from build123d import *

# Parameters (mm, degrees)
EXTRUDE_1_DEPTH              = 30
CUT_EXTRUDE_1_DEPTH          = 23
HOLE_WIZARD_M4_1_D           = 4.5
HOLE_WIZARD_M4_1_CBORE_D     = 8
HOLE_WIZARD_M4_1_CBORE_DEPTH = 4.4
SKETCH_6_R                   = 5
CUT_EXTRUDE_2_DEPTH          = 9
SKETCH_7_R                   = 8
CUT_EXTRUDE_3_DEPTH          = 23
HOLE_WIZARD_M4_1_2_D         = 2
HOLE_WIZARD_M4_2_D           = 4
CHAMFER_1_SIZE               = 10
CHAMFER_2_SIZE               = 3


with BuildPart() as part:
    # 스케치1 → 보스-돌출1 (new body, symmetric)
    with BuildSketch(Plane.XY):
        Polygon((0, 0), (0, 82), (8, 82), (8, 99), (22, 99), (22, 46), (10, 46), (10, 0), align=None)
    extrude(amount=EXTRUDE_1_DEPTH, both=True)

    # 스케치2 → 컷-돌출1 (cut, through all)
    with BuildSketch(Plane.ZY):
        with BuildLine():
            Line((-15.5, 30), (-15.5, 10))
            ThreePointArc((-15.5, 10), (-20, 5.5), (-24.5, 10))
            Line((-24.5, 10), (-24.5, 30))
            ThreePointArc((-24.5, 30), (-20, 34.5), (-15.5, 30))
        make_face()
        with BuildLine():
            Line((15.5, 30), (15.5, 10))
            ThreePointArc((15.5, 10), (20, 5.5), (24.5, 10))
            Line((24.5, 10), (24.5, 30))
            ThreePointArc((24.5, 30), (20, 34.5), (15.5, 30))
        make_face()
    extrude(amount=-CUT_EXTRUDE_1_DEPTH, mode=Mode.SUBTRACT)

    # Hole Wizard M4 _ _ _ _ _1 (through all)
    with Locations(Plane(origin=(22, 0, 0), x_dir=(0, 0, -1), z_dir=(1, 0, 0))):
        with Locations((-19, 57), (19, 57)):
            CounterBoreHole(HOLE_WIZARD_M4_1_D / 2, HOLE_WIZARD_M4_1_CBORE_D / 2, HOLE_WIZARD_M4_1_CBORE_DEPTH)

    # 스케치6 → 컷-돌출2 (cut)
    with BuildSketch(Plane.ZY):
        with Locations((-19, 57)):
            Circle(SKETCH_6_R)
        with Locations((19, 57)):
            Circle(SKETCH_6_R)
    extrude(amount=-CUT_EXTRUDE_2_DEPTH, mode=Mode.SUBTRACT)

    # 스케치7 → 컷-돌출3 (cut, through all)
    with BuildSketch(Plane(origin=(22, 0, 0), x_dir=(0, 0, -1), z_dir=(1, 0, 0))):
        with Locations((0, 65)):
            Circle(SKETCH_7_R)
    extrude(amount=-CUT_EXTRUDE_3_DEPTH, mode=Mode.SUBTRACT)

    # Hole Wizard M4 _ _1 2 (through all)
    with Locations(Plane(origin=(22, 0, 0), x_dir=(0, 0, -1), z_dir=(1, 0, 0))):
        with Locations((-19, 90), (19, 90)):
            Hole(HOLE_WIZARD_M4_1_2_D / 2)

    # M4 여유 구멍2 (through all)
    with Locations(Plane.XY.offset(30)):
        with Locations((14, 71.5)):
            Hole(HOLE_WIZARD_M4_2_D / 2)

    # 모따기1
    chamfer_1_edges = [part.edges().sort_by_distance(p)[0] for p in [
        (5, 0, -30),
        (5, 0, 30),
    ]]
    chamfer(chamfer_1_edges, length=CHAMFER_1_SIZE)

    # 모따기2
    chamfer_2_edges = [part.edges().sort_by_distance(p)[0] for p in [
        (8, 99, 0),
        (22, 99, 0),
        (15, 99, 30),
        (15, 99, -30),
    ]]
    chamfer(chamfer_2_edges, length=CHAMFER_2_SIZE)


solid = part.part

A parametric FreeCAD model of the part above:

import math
import FreeCAD as App
import Part
import Sketcher
from FreeCAD import Vector


def edges_at(feature, points):
    """Names of the edges that pass closest to the given points."""
    edges = feature.Shape.Edges
    near = lambda p: min(range(len(edges)), key=lambda i: edges[i].distToShape(Part.Vertex(*p))[0])
    return sorted({f"Edge{near(p) + 1}" for p in points})

doc = App.newDocument("Part")
params = doc.addObject("Spreadsheet::Sheet", "Params")
for row, (alias, value) in enumerate([
    ("sketch1_width", "10 mm"),
    ("sketch1_width2", "12 mm"),
    ("sketch1_width3", "14 mm"),
    ("sketch1_height", "82 mm"),
    ("sketch1_height2", "46 mm"),
    ("pad1_length", "60 mm"),
    ("sketch2_radius", "4.5 mm"),
    ("sketch2_width", "20 mm"),
    ("sketch3_diameter", "4.5 mm"),
    ("hole_diameter", "4.5 mm"),
    ("hole_cbore_diameter", "8 mm"),
    ("hole_cbore_depth", "4.4 mm"),
    ("sketch4_diameter", "10 mm"),
    ("pocket2_length", "9 mm"),
    ("sketch5_diameter", "16 mm"),
    ("sketch6_diameter", "2 mm"),
    ("hole2_diameter", "2 mm"),
    ("sketch7_diameter", "4 mm"),
    ("hole3_diameter", "4 mm"),
    ("chamfer_size", "10 mm"),
    ("chamfer2_size", "3 mm"),
], start=1):
    params.set(f"A{row}", alias)
    params.set(f"B{row}", "=" + value)
    params.setAlias(f"B{row}", alias)

body = doc.addObject("PartDesign::Body", "Body")

sketch1 = body.newObject("Sketcher::SketchObject", "Sketch")
sketch1.AttachmentSupport = (doc.getObject("XY_Plane"), [""])
sketch1.MapMode = "FlatFace"
sketch1.addGeometry([
    Part.LineSegment(Vector(0, 82, 0), Vector(0, 0, 0)),
    Part.LineSegment(Vector(0, 0, 0), Vector(10, 0, 0)),
    Part.LineSegment(Vector(10, 0, 0), Vector(10, 46, 0)),
    Part.LineSegment(Vector(10, 46, 0), Vector(22, 46, 0)),
    Part.LineSegment(Vector(22, 46, 0), Vector(22, 99, 0)),
    Part.LineSegment(Vector(22, 99, 0), Vector(8, 99, 0)),
    Part.LineSegment(Vector(8, 99, 0), Vector(8, 82, 0)),
    Part.LineSegment(Vector(8, 82, 0), Vector(0, 82, 0)),
], False)
sketch1.addConstraint([
    Sketcher.Constraint("Coincident", 0, 2, 1, 1),
    Sketcher.Constraint("Coincident", 1, 2, 2, 1),
    Sketcher.Constraint("Coincident", 2, 2, 3, 1),
    Sketcher.Constraint("Coincident", 3, 2, 4, 1),
    Sketcher.Constraint("Coincident", 4, 2, 5, 1),
    Sketcher.Constraint("Coincident", 5, 2, 6, 1),
    Sketcher.Constraint("Coincident", 6, 2, 7, 1),
    Sketcher.Constraint("Coincident", 7, 2, 0, 1),
    Sketcher.Constraint("Vertical", 0),
    Sketcher.Constraint("Horizontal", 1),
    Sketcher.Constraint("Vertical", 2),
    Sketcher.Constraint("Horizontal", 3),
    Sketcher.Constraint("Vertical", 4),
    Sketcher.Constraint("Horizontal", 5),
    Sketcher.Constraint("Vertical", 6),
    Sketcher.Constraint("Horizontal", 7),
    Sketcher.Constraint("Coincident", 0, 2, -1, 1),
    Sketcher.Constraint("DistanceX", 1, 1, 1, 2, 10.0),
    Sketcher.Constraint("DistanceX", 3, 1, 3, 2, 12.0),
    Sketcher.Constraint("DistanceX", 5, 2, 5, 1, 14.0),
    Sketcher.Constraint("DistanceY", 0, 2, 0, 1, 82.0),
    Sketcher.Constraint("DistanceY", 2, 1, 2, 2, 46.0),
    Sketcher.Constraint("DistanceY", 4, 1, 4, 2, 53.0),
])
sketch1.setExpression("Constraints[17]", "Params.sketch1_width")
sketch1.setExpression("Constraints[18]", "Params.sketch1_width2")
sketch1.setExpression("Constraints[19]", "Params.sketch1_width3")
sketch1.setExpression("Constraints[20]", "Params.sketch1_height")
sketch1.setExpression("Constraints[21]", "Params.sketch1_height2")
pad1 = body.newObject("PartDesign::Pad", "Pad")
pad1.Profile = sketch1
pad1.setExpression("Length", "Params.pad1_length")
pad1.Midplane = True

sketch2 = body.newObject("Sketcher::SketchObject", "Sketch001")
sketch2.AttachmentSupport = (doc.getObject("YZ_Plane"), [""])
sketch2.MapMode = "FlatFace"
sketch2.addGeometry([
    Part.LineSegment(Vector(10, -15.5, 0), Vector(30, -15.5, 0)),
    Part.ArcOfCircle(Part.Circle(Vector(30, -20, 0), Vector(0, 0, 1), 4.5), math.radians(-90), math.radians(90)),
    Part.LineSegment(Vector(30, -24.5, 0), Vector(10, -24.5, 0)),
    Part.ArcOfCircle(Part.Circle(Vector(10, -20, 0), Vector(0, 0, 1), 4.5), math.radians(90), math.radians(270)),
    Part.LineSegment(Vector(30, 15.5, 0), Vector(10, 15.5, 0)),
    Part.ArcOfCircle(Part.Circle(Vector(10, 20, 0), Vector(0, 0, 1), 4.5), math.radians(90), math.radians(270)),
    Part.LineSegment(Vector(10, 24.5, 0), Vector(30, 24.5, 0)),
    Part.ArcOfCircle(Part.Circle(Vector(30, 20, 0), Vector(0, 0, 1), 4.5), math.radians(-90), math.radians(90)),
], False)
sketch2.addConstraint([
    Sketcher.Constraint("Tangent", 0, 2, 1, 2),
    Sketcher.Constraint("Tangent", 1, 1, 2, 1),
    Sketcher.Constraint("Tangent", 2, 2, 3, 2),
    Sketcher.Constraint("Tangent", 3, 1, 0, 1),
    Sketcher.Constraint("Tangent", 4, 2, 5, 2),
    Sketcher.Constraint("Tangent", 5, 1, 6, 1),
    Sketcher.Constraint("Tangent", 6, 2, 7, 2),
    Sketcher.Constraint("Tangent", 7, 1, 4, 1),
    Sketcher.Constraint("Horizontal", 0),
    Sketcher.Constraint("Horizontal", 2),
    Sketcher.Constraint("Horizontal", 4),
    Sketcher.Constraint("Horizontal", 6),
    Sketcher.Constraint("Equal", 3, 5),
    Sketcher.Constraint("Symmetric", 3, 3, 5, 3, -1),
    Sketcher.Constraint("Vertical", 1, 3, 7, 3),
    Sketcher.Constraint("Radius", 1, 4.5),
    Sketcher.Constraint("DistanceX", 0, 1, 0, 2, 20.0),
    Sketcher.Constraint("DistanceX", -1, 1, 1, 3, 30.0),
    Sketcher.Constraint("DistanceY", 1, 3, -1, 1, 20.0),
])
sketch2.setExpression("Constraints[15]", "Params.sketch2_radius")
sketch2.setExpression("Constraints[16]", "Params.sketch2_width")
pocket1 = body.newObject("PartDesign::Pocket", "Pocket")
pocket1.Profile = sketch2
pocket1.Type = "ThroughAll"
pocket1.Reversed = True

sketch3 = body.newObject("Sketcher::SketchObject", "Sketch002")
sketch3.AttachmentSupport = (doc.getObject("YZ_Plane"), [""])
sketch3.MapMode = "FlatFace"
sketch3.AttachmentOffset = App.Placement(Vector(0, 0, 22), App.Rotation())
sketch3.addGeometry([
    Part.Circle(Vector(57, 19, 0), Vector(0, 0, 1), 2.25),
    Part.Circle(Vector(57, -19, 0), Vector(0, 0, 1), 2.25),
], False)
sketch3.addConstraint([
    Sketcher.Constraint("Equal", 0, 1),
    Sketcher.Constraint("Symmetric", 0, 3, 1, 3, -1),
    Sketcher.Constraint("Diameter", 0, 4.5),
    Sketcher.Constraint("DistanceX", -1, 1, 0, 3, 57.0),
    Sketcher.Constraint("DistanceY", -1, 1, 0, 3, 19.0),
])
sketch3.setExpression("Constraints[2]", "Params.sketch3_diameter")
doc.recompute()
hole = body.newObject("PartDesign::Hole", "Hole")
hole.Profile = sketch3
hole.ThreadType = "None"
hole.setExpression("Diameter", "Params.hole_diameter")
hole.DepthType = "ThroughAll"
hole.HoleCutType = "Counterbore"
hole.setExpression("HoleCutDiameter", "Params.hole_cbore_diameter")
hole.setExpression("HoleCutDepth", "Params.hole_cbore_depth")

sketch4 = body.newObject("Sketcher::SketchObject", "Sketch003")
sketch4.AttachmentSupport = (doc.getObject("YZ_Plane"), [""])
sketch4.MapMode = "FlatFace"
sketch4.addGeometry([
    Part.Circle(Vector(57, -19, 0), Vector(0, 0, 1), 5),
    Part.Circle(Vector(57, 19, 0), Vector(0, 0, 1), 5),
], False)
sketch4.addConstraint([
    Sketcher.Constraint("Equal", 0, 1),
    Sketcher.Constraint("Symmetric", 0, 3, 1, 3, -1),
    Sketcher.Constraint("Diameter", 0, 10.0),
    Sketcher.Constraint("DistanceX", -1, 1, 0, 3, 57.0),
    Sketcher.Constraint("DistanceY", 0, 3, -1, 1, 19.0),
])
sketch4.setExpression("Constraints[2]", "Params.sketch4_diameter")
pocket2 = body.newObject("PartDesign::Pocket", "Pocket001")
pocket2.Profile = sketch4
pocket2.setExpression("Length", "Params.pocket2_length")
pocket2.Reversed = True

sketch5 = body.newObject("Sketcher::SketchObject", "Sketch004")
sketch5.AttachmentSupport = (doc.getObject("YZ_Plane"), [""])
sketch5.MapMode = "FlatFace"
sketch5.AttachmentOffset = App.Placement(Vector(0, 0, 22), App.Rotation())
sketch5.addGeometry(Part.Circle(Vector(65, 0, 0), Vector(0, 0, 1), 8), False)
sketch5.addConstraint([
    Sketcher.Constraint("PointOnObject", 0, 3, -1),
    Sketcher.Constraint("Diameter", 0, 16.0),
    Sketcher.Constraint("DistanceX", -1, 1, 0, 3, 65.0),
])
sketch5.setExpression("Constraints[1]", "Params.sketch5_diameter")
pocket3 = body.newObject("PartDesign::Pocket", "Pocket002")
pocket3.Profile = sketch5
pocket3.Type = "ThroughAll"

sketch6 = body.newObject("Sketcher::SketchObject", "Sketch005")
sketch6.AttachmentSupport = (doc.getObject("YZ_Plane"), [""])
sketch6.MapMode = "FlatFace"
sketch6.AttachmentOffset = App.Placement(Vector(0, 0, 22), App.Rotation())
sketch6.addGeometry([
    Part.Circle(Vector(90, 19, 0), Vector(0, 0, 1), 1),
    Part.Circle(Vector(90, -19, 0), Vector(0, 0, 1), 1),
], False)
sketch6.addConstraint([
    Sketcher.Constraint("Equal", 0, 1),
    Sketcher.Constraint("Symmetric", 0, 3, 1, 3, -1),
    Sketcher.Constraint("Diameter", 0, 2.0),
    Sketcher.Constraint("DistanceX", -1, 1, 0, 3, 90.0),
    Sketcher.Constraint("DistanceY", -1, 1, 0, 3, 19.0),
])
sketch6.setExpression("Constraints[2]", "Params.sketch6_diameter")
doc.recompute()
hole2 = body.newObject("PartDesign::Hole", "Hole001")
hole2.Profile = sketch6
hole2.ThreadType = "None"
hole2.setExpression("Diameter", "Params.hole2_diameter")
hole2.DepthType = "ThroughAll"

sketch7 = body.newObject("Sketcher::SketchObject", "Sketch006")
sketch7.AttachmentSupport = (doc.getObject("XY_Plane"), [""])
sketch7.MapMode = "FlatFace"
sketch7.AttachmentOffset = App.Placement(Vector(0, 0, 30), App.Rotation())
sketch7.addGeometry(Part.Circle(Vector(14, 71.5, 0), Vector(0, 0, 1), 2), False)
sketch7.addConstraint([
    Sketcher.Constraint("Diameter", 0, 4.0),
    Sketcher.Constraint("DistanceX", -1, 1, 0, 3, 14.0),
    Sketcher.Constraint("DistanceY", -1, 1, 0, 3, 71.5),
])
sketch7.setExpression("Constraints[0]", "Params.sketch7_diameter")
doc.recompute()
hole3 = body.newObject("PartDesign::Hole", "Hole002")
hole3.Profile = sketch7
hole3.ThreadType = "None"
hole3.setExpression("Diameter", "Params.hole3_diameter")
hole3.DepthType = "ThroughAll"
doc.recompute()

chamfer = body.newObject("PartDesign::Chamfer", "Chamfer")
chamfer.Base = (hole3, edges_at(hole3, [(5, 0, -30), (5, 0, 30)]))
chamfer.setExpression("Size", "Params.chamfer_size")
doc.recompute()

chamfer2 = body.newObject("PartDesign::Chamfer", "Chamfer001")
chamfer2.Base = (chamfer, edges_at(chamfer, [
    (8, 99, 0),
    (22, 99, 0),
    (15, 99, 30),
    (15, 99, -30),
]))
chamfer2.setExpression("Size", "Params.chamfer2_size")

doc.recompute()
